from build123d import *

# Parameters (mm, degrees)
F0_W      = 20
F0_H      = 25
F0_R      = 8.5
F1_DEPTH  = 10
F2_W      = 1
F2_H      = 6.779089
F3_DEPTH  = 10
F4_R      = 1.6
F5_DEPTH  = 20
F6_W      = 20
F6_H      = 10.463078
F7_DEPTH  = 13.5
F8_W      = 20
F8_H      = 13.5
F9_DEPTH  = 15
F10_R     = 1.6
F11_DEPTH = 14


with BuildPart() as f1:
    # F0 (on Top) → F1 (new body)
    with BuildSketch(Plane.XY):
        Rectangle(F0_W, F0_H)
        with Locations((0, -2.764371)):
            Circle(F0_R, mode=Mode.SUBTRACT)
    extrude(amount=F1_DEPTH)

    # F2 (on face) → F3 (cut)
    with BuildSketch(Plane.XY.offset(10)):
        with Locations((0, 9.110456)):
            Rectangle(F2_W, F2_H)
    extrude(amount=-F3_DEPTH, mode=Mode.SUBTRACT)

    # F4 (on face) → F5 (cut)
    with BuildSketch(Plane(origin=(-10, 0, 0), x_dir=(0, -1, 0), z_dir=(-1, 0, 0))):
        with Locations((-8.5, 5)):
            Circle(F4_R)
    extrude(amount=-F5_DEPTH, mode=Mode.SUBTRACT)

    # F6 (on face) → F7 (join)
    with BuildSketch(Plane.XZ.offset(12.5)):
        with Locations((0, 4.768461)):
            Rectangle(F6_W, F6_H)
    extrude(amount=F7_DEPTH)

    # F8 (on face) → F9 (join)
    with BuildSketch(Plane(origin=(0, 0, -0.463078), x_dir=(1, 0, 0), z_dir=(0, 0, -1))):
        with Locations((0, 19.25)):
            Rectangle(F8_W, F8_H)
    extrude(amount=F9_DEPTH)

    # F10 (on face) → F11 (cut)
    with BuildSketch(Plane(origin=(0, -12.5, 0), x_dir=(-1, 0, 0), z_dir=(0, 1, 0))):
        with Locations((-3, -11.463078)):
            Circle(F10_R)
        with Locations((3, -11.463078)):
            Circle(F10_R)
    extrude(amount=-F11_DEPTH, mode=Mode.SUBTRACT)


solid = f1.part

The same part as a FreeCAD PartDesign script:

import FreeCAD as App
import Part
import Sketcher
Q = App.Units.Quantity


def add_polygon(sketch, points):
    """Adds a closed chain of lines whose ends are joined by coincident constraints."""
    first, n = sketch.GeometryCount, len(points)
    for a, b in zip(points, points[1:] + points[:1]):
        sketch.addGeometry(Part.LineSegment(App.Vector(*a, 0), App.Vector(*b, 0)), False)
    for i in range(n):
        sketch.addConstraint(Sketcher.Constraint("Coincident", first + i, 2, first + (i + 1) % n, 1))

doc = App.newDocument("Part")
body = doc.addObject("PartDesign::Body", "Body")

# Sketch on XY plane
sketch1 = body.newObject("Sketcher::SketchObject", "Sketch")
sketch1.AttachmentSupport = (doc.getObject("XY_Plane"), [""])
sketch1.MapMode = "FlatFace"
add_polygon(sketch1, [(-10, 12), (-10, -12), (10, -12), (10, 12)])  # lines 0-3
sketch1.addGeometry(Part.Circle(App.Vector(0, -3, 0), App.Vector(0, 0, 1), 8), False)  # 4
sketch1.addConstraint([
    Sketcher.Constraint("Vertical", 0),
    Sketcher.Constraint("Horizontal", 1),
    Sketcher.Constraint("Vertical", 2),
    Sketcher.Constraint("Horizontal", 3),
    Sketcher.Constraint("Symmetric", 0, 2, 2, 2, -1, 1),
    Sketcher.Constraint("PointOnObject", 4, 3, -2),
    Sketcher.Constraint("Diameter", 4, Q("17 mm")),
    Sketcher.Constraint("DistanceX", 1, 1, 1, 2, Q("20 mm")),
    Sketcher.Constraint("DistanceY", 0, 2, 0, 1, Q("25 mm")),
    Sketcher.Constraint("DistanceY", 4, 3, -1, 1, Q("2.764371 mm")),
])
pad1 = body.newObject("PartDesign::Pad", "Pad")
pad1.Profile = sketch1
pad1.Length = 10

# Sketch on XY plane
sketch2 = body.newObject("Sketcher::SketchObject", "Sketch001")
sketch2.AttachmentSupport = (doc.getObject("XY_Plane"), [""])
sketch2.MapMode = "FlatFace"
sketch2.AttachmentOffset = App.Placement(App.Vector(0, 0, 10), App.Rotation())
add_polygon(sketch2, [(-0.5, 12.5), (-0.5, 5.7), (0.5, 5.7), (0.5, 12.5)])  # lines 0-3
sketch2.addConstraint([
    Sketcher.Constraint("Vertical", 0),
    Sketcher.Constraint("Horizontal", 1),
    Sketcher.Constraint("Vertical", 2),
    Sketcher.Constraint("Horizontal", 3),
    Sketcher.Constraint("DistanceX", 1, 1, 1, 2, Q("1 mm")),
    Sketcher.Constraint("DistanceX", 0, 2, -1, 1, Q("0.5 mm")),
    Sketcher.Constraint("DistanceY", -1, 1, 2, 2, Q("12.500001 mm")),
    Sketcher.Constraint("DistanceY", 0, 2, 0, 1, Q("6.779089 mm")),
])
pocket1 = body.newObject("PartDesign::Pocket", "Pocket")
pocket1.Profile = sketch2
pocket1.Length = 10

# Sketch on YZ plane
sketch3 = body.newObject("Sketcher::SketchObject", "Sketch002")
sketch3.AttachmentSupport = (doc.getObject("YZ_Plane"), [""])
sketch3.MapMode = "FlatFace"
sketch3.AttachmentOffset = App.Placement(App.Vector(0, 0, -10), App.Rotation())
sketch3.addGeometry(Part.Circle(App.Vector(8.5, 5, 0), App.Vector(0, 0, 1), 1.6), False)
sketch3.addConstraint([
    Sketcher.Constraint("Diameter", 0, Q("3.2 mm")),
    Sketcher.Constraint("DistanceY", -1, 1, 0, 3, Q("5 mm")),
    Sketcher.Constraint("DistanceX", -1, 1, 0, 3, Q("8.5 mm")),
])
pocket2 = body.newObject("PartDesign::Pocket", "Pocket001")
pocket2.Profile = sketch3
pocket2.Length = 20
pocket2.Reversed = True

# Sketch on XZ plane
sketch4 = body.newObject("Sketcher::SketchObject", "Sketch003")
sketch4.AttachmentSupport = (doc.getObject("XZ_Plane"), [""])
sketch4.MapMode = "FlatFace"
sketch4.AttachmentOffset = App.Placement(App.Vector(0, 0, 12.5), App.Rotation())
add_polygon(sketch4, [(-10, 10), (-10, 0), (10, 0), (10, 10)])  # lines 0-3
sketch4.addConstraint([
    Sketcher.Constraint("Vertical", 0),
    Sketcher.Constraint("Horizontal", 1),
    Sketcher.Constraint("Vertical", 2),
    Sketcher.Constraint("Horizontal", 3),
    Sketcher.Constraint("DistanceX", 1, 1, 1, 2, Q("20 mm")),
    Sketcher.Constraint("DistanceX", 0, 2, -1, 1, Q("10 mm")),
    Sketcher.Constraint("DistanceY", -1, 1, 2, 2, Q("10 mm")),
    Sketcher.Constraint("DistanceY", 0, 2, 0, 1, Q("10.463078 mm")),
])
pad2 = body.newObject("PartDesign::Pad", "Pad001")
pad2.Profile = sketch4
pad2.Length = 13.5

# Sketch on XY plane
sketch5 = body.newObject("Sketcher::SketchObject", "Sketch004")
sketch5.AttachmentSupport = (doc.getObject("XY_Plane"), [""])
sketch5.MapMode = "FlatFace"
sketch5.AttachmentOffset = App.Placement(App.Vector(0, 0, -0.463078), App.Rotation())
add_polygon(sketch5, [(-10, -26), (-10, -12), (10, -12), (10, -26)])  # lines 0-3
sketch5.addConstraint([
    Sketcher.Constraint("Vertical", 0),
    Sketcher.Constraint("Horizontal", 1),
    Sketcher.Constraint("Vertical", 2),
    Sketcher.Constraint("Horizontal", 3),
    Sketcher.Constraint("DistanceX", 1, 1, 1, 2, Q("20 mm")),
    Sketcher.Constraint("DistanceY", 0, 1, 0, 2, Q("13.5 mm")),
    Sketcher.Constraint("DistanceX", 0, 2, -1, 1, Q("10 mm")),
    Sketcher.Constraint("DistanceY", 2, 2, -1, 1, Q("26 mm")),
])
pad3 = body.newObject("PartDesign::Pad", "Pad002")
pad3.Profile = sketch5
pad3.Length = 15
pad3.Reversed = True

# Sketch on XZ plane
sketch6 = body.newObject("Sketcher::SketchObject", "Sketch005")
sketch6.AttachmentSupport = (doc.getObject("XZ_Plane"), [""])
sketch6.MapMode = "FlatFace"
sketch6.AttachmentOffset = App.Placement(App.Vector(0, 0, 12.5), App.Rotation())
sketch6.addGeometry([
    Part.Circle(App.Vector(3, -11.5, 0), App.Vector(0, 0, 1), 1.6),
    Part.Circle(App.Vector(-3, -11.5, 0), App.Vector(0, 0, 1), 1.6),
], False)
sketch6.addConstraint([
    Sketcher.Constraint("Equal", 0, 1),
    Sketcher.Constraint("Symmetric", 0, 3, 1, 3, -2),
    Sketcher.Constraint("Diameter", 0, Q("3.2 mm")),
    Sketcher.Constraint("DistanceX", -1, 1, 0, 3, Q("3 mm")),
    Sketcher.Constraint("DistanceY", 0, 3, -1, 1, Q("11.463078 mm")),
])
pocket3 = body.newObject("PartDesign::Pocket", "Pocket002")
pocket3.Profile = sketch6
pocket3.Length = 14
pocket3.Reversed = True

doc.recompute()
